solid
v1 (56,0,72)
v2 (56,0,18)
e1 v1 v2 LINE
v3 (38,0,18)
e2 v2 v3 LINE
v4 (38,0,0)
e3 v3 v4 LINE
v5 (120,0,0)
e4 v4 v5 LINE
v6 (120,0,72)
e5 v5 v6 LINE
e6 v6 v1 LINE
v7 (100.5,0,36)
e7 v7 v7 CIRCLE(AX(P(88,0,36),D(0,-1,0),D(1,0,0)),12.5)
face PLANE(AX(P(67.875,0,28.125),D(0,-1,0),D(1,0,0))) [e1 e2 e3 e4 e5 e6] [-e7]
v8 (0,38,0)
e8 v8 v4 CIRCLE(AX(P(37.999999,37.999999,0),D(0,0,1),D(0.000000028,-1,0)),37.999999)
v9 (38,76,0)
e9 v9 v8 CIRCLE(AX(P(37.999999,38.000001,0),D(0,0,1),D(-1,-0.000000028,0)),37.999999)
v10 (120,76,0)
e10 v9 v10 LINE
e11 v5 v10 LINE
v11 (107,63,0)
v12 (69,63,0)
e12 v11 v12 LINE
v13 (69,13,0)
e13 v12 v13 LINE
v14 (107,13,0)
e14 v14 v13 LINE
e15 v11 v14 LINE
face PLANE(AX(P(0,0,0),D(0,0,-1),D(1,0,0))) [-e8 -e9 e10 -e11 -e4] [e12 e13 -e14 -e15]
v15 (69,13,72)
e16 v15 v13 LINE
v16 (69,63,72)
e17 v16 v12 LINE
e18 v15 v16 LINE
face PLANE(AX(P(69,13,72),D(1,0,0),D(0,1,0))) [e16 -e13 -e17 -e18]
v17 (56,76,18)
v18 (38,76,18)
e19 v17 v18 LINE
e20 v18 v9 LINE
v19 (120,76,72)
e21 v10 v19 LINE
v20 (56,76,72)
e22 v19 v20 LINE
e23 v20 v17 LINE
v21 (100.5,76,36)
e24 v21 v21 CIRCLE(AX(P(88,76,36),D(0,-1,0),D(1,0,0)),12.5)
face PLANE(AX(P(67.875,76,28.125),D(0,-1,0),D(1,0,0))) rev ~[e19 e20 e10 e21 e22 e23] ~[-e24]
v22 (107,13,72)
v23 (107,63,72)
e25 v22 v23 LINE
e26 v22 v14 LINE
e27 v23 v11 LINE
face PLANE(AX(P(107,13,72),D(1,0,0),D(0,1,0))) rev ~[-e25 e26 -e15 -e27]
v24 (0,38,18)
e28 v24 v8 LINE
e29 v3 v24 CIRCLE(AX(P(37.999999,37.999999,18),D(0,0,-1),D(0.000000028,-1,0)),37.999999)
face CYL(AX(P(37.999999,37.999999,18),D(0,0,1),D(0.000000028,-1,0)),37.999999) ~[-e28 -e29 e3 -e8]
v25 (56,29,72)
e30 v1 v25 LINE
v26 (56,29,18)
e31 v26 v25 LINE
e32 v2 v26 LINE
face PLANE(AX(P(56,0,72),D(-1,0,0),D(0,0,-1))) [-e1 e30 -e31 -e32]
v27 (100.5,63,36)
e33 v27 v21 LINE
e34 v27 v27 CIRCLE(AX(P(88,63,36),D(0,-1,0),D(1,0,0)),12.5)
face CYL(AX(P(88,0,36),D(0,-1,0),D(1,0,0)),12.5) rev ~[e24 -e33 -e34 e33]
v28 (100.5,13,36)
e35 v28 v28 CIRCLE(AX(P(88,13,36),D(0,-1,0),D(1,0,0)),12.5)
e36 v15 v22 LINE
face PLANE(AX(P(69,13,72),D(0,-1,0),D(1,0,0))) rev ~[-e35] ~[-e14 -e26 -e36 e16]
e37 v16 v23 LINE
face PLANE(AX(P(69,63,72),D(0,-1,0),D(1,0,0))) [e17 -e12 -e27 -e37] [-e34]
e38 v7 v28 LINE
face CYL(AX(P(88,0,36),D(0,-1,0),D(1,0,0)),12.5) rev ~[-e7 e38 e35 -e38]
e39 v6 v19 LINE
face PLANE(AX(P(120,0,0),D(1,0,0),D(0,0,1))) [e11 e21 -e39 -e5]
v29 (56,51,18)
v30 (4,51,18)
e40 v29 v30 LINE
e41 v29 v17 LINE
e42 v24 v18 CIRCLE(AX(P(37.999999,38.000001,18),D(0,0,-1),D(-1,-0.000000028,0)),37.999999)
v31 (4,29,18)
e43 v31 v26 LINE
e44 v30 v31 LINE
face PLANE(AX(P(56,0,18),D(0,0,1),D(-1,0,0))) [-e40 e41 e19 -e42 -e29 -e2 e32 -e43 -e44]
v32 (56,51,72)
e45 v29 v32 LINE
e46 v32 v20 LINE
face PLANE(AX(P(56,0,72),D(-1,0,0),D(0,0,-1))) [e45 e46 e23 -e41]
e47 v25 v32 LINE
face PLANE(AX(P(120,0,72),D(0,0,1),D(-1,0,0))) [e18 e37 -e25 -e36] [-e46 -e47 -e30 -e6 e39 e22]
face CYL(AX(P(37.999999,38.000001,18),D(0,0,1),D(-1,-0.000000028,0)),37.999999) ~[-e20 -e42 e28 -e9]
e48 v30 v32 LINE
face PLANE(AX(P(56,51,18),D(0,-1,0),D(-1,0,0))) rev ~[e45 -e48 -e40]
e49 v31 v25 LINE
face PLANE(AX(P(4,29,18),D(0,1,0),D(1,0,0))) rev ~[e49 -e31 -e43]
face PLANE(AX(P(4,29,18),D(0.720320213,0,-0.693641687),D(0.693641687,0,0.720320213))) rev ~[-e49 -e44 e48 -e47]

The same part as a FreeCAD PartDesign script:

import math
import FreeCAD as App
import Part
import Sketcher

V = App.Vector
Q = App.Units.Quantity

doc = App.newDocument("Part")
body = doc.addObject("PartDesign::Body", "Body")

# Sketch on XZ plane
sketch1 = body.newObject("Sketcher::SketchObject", "Sketch")
sketch1.AttachmentSupport = (doc.getObject("XZ_Plane"), [""])
sketch1.MapMode = "FlatFace"
sketch1.addGeometry([
    Part.LineSegment(V(0, 18, 0), V(0, 0, 0)),  # 0
    Part.LineSegment(V(0, 0, 0), V(120, 0, 0)),  # 1
    Part.LineSegment(V(120, 0, 0), V(120, 72, 0)),  # 2
    Part.LineSegment(V(120, 72, 0), V(56, 72, 0)),  # 3
    Part.LineSegment(V(56, 72, 0), V(56, 18, 0)),  # 4
    Part.LineSegment(V(56, 18, 0), V(0, 18, 0)),  # 5
    Part.Circle(V(88, 36, 0), V(0, 0, 1), 12.5),  # 6
], False)
sketch1.addConstraint([
    Sketcher.Constraint("Coincident", 0, 2, 1, 1),
    Sketcher.Constraint("Coincident", 1, 2, 2, 1),
    Sketcher.Constraint("Coincident", 2, 2, 3, 1),
    Sketcher.Constraint("Coincident", 3, 2, 4, 1),
    Sketcher.Constraint("Coincident", 4, 2, 5, 1),
    Sketcher.Constraint("Coincident", 5, 2, 0, 1),
    Sketcher.Constraint("Vertical", 0),
    Sketcher.Constraint("Horizontal", 1),
    Sketcher.Constraint("Vertical", 2),
    Sketcher.Constraint("Horizontal", 3),
    Sketcher.Constraint("Vertical", 4),
    Sketcher.Constraint("Horizontal", 5),
    Sketcher.Constraint("Coincident", 0, 2, -1, 1),
    Sketcher.Constraint("Diameter", 6, Q("25 mm")),
    Sketcher.Constraint("DistanceX", 1, 1, 1, 2, Q("120 mm")),
    Sketcher.Constraint("DistanceX", 3, 2, 3, 1, Q("64 mm")),
    Sketcher.Constraint("DistanceY", 0, 2, 0, 1, Q("18 mm")),
    Sketcher.Constraint("DistanceY", 2, 1, 2, 2, Q("72 mm")),
    Sketcher.Constraint("DistanceX", -1, 1, 6, 3, Q("88 mm")),
    Sketcher.Constraint("DistanceY", -1, 1, 6, 3, Q("36 mm")),
])
pad1 = body.newObject("PartDesign::Pad", "Pad")
pad1.Profile = sketch1
pad1.Length = 76
pad1.Reversed = True

# Sketch on XY plane
sketch2 = body.newObject("Sketcher::SketchObject", "Sketch001")
sketch2.AttachmentSupport = (doc.getObject("XY_Plane"), [""])
sketch2.MapMode = "FlatFace"
sketch2.AttachmentOffset = App.Placement(V(0, 0, 72), App.Rotation())
sketch2.addGeometry([
    Part.LineSegment(V(69, 63, 0), V(69, 13, 0)),
    Part.LineSegment(V(69, 13, 0), V(107, 13, 0)),
    Part.LineSegment(V(107, 13, 0), V(107, 63, 0)),
    Part.LineSegment(V(107, 63, 0), V(69, 63, 0)),
], False)
sketch2.addConstraint([
    Sketcher.Constraint("Coincident", 0, 2, 1, 1),
    Sketcher.Constraint("Coincident", 1, 2, 2, 1),
    Sketcher.Constraint("Coincident", 2, 2, 3, 1),
    Sketcher.Constraint("Coincident", 3, 2, 0, 1),
    Sketcher.Constraint("Vertical", 0),
    Sketcher.Constraint("Horizontal", 1),
    Sketcher.Constraint("Vertical", 2),
    Sketcher.Constraint("Horizontal", 3),
    Sketcher.Constraint("DistanceX", 1, 1, 1, 2, Q("38 mm")),
    Sketcher.Constraint("DistanceY", 0, 2, 0, 1, Q("50 mm")),
    Sketcher.Constraint("DistanceX", -1, 1, 0, 2, Q("69 mm")),
    Sketcher.Constraint("DistanceY", -1, 1, 0, 2, Q("13 mm")),
])
pocket1 = body.newObject("PartDesign::Pocket", "Pocket")
pocket1.Profile = sketch2
pocket1.Length = 98.3

# Sketch on XY plane
sketch3 = body.newObject("Sketcher::SketchObject", "Sketch002")
sketch3.AttachmentSupport = (doc.getObject("XY_Plane"), [""])
sketch3.MapMode = "FlatFace"
sketch3.AttachmentOffset = App.Placement(V(0, 0, 18), App.Rotation())
sketch3.addGeometry([
    Part.ArcOfCircle(Part.Circle(V(37.999999, 38.000001, 0), V(0, 0, 1), 37.999999), math.radians(89.999998), math.radians(180.000002)),  # 0
    Part.LineSegment(V(38, 76, 0), V(0, 76, 0)),  # 1
    Part.LineSegment(V(0, 76, 0), V(0, 38, 0)),  # 2
    Part.ArcOfCircle(Part.Circle(V(37.999999, 37.999999, 0), V(0, 0, 1), 37.999999), math.radians(179.999998), math.radians(270.000002)),  # 3
    Part.LineSegment(V(0, 38, 0), V(0, 0, 0)),  # 4
    Part.LineSegment(V(0, 0, 0), V(38, 0, 0)),  # 5
], False)
sketch3.addConstraint([
    Sketcher.Constraint("Tangent", 0, 1, 1, 1),
    Sketcher.Constraint("Coincident", 1, 2, 2, 1),
    Sketcher.Constraint("Tangent", 2, 2, 0, 2),
    Sketcher.Constraint("Tangent", 3, 1, 4, 1),
    Sketcher.Constraint("Coincident", 4, 2, 5, 1),
    Sketcher.Constraint("Tangent", 5, 2, 3, 2),
    Sketcher.Constraint("Horizontal", 1),
    Sketcher.Constraint("Vertical", 2),
    Sketcher.Constraint("Vertical", 4),
    Sketcher.Constraint("Horizontal", 5),
    Sketcher.Constraint("Coincident", 4, 2, -1, 1),
    Sketcher.Constraint("Coincident", 3, 3, 0, 3),
    Sketcher.Constraint("Equal", 0, 3),
    Sketcher.Constraint("Radius", 0, Q("37.999999 mm")),
])
pocket2 = body.newObject("PartDesign::Pocket", "Pocket001")
pocket2.Profile = sketch3
pocket2.Length = 25

# Sketch on XY plane
sketch4 = body.newObject("Sketcher::SketchObject", "Sketch003")
sketch4.AttachmentSupport = (doc.getObject("XY_Plane"), [""])
sketch4.MapMode = "FlatFace"
sketch4.AttachmentOffset = App.Placement(V(0, 0, 18), App.Rotation())
sketch4.addGeometry([
    Part.LineSegment(V(56, 51, 0), V(4, 51, 0)),
    Part.LineSegment(V(4, 51, 0), V(4, 29, 0)),
    Part.LineSegment(V(4, 29, 0), V(56, 29, 0)),
    Part.LineSegment(V(56, 29, 0), V(56, 51, 0)),
], False)
sketch4.addConstraint([
    Sketcher.Constraint("Coincident", 0, 2, 1, 1),
    Sketcher.Constraint("Coincident", 1, 2, 2, 1),
    Sketcher.Constraint("Coincident", 2, 2, 3, 1),
    Sketcher.Constraint("Coincident", 3, 2, 0, 1),
    Sketcher.Constraint("Horizontal", 0),
    Sketcher.Constraint("Vertical", 1),
    Sketcher.Constraint("Horizontal", 2),
    Sketcher.Constraint("Vertical", 3),
    Sketcher.Constraint("DistanceX", 0, 2, 0, 1, Q("52 mm")),
    Sketcher.Constraint("DistanceY", 1, 2, 1, 1, Q("22 mm")),
    Sketcher.Constraint("DistanceX", -1, 1, 0, 2, Q("4 mm")),
    Sketcher.Constraint("DistanceY", -1, 1, 0, 2, Q("51 mm")),
])
pad2 = body.newObject("PartDesign::Pad", "Pad001")
pad2.Profile = sketch4
pad2.Length = 54

# Sketch on XZ plane
sketch5 = body.newObject("Sketcher::SketchObject", "Sketch004")
sketch5.AttachmentSupport = (doc.getObject("XZ_Plane"), [""])
sketch5.MapMode = "FlatFace"
sketch5.AttachmentOffset = App.Placement(V(0, 0, -29), App.Rotation())
sketch5.addGeometry([
    Part.LineSegment(V(4, 18, 0), V(56, 72, 0)),
    Part.LineSegment(V(56, 72, 0), V(4, 72, 0)),
    Part.LineSegment(V(4, 72, 0), V(4, 18, 0)),
], False)
sketch5.addConstraint([
    Sketcher.Constraint("Coincident", 0, 2, 1, 1),
    Sketcher.Constraint("Coincident", 1, 2, 2, 1),
    Sketcher.Constraint("Coincident", 2, 2, 0, 1),
    Sketcher.Constraint("Horizontal", 1),
    Sketcher.Constraint("Vertical", 2),
    Sketcher.Constraint("DistanceX", 1, 2, 1, 1, Q("52 mm")),
    Sketcher.Constraint("DistanceY", 2, 2, 2, 1, Q("54 mm")),
    Sketcher.Constraint("DistanceX", -1, 1, 0, 2, Q("56 mm")),
    Sketcher.Constraint("DistanceY", -1, 1, 0, 2, Q("72 mm")),
])
pocket3 = body.newObject("PartDesign::Pocket", "Pocket002")
pocket3.Profile = sketch5
pocket3.Length = 44.5

doc.recompute()
